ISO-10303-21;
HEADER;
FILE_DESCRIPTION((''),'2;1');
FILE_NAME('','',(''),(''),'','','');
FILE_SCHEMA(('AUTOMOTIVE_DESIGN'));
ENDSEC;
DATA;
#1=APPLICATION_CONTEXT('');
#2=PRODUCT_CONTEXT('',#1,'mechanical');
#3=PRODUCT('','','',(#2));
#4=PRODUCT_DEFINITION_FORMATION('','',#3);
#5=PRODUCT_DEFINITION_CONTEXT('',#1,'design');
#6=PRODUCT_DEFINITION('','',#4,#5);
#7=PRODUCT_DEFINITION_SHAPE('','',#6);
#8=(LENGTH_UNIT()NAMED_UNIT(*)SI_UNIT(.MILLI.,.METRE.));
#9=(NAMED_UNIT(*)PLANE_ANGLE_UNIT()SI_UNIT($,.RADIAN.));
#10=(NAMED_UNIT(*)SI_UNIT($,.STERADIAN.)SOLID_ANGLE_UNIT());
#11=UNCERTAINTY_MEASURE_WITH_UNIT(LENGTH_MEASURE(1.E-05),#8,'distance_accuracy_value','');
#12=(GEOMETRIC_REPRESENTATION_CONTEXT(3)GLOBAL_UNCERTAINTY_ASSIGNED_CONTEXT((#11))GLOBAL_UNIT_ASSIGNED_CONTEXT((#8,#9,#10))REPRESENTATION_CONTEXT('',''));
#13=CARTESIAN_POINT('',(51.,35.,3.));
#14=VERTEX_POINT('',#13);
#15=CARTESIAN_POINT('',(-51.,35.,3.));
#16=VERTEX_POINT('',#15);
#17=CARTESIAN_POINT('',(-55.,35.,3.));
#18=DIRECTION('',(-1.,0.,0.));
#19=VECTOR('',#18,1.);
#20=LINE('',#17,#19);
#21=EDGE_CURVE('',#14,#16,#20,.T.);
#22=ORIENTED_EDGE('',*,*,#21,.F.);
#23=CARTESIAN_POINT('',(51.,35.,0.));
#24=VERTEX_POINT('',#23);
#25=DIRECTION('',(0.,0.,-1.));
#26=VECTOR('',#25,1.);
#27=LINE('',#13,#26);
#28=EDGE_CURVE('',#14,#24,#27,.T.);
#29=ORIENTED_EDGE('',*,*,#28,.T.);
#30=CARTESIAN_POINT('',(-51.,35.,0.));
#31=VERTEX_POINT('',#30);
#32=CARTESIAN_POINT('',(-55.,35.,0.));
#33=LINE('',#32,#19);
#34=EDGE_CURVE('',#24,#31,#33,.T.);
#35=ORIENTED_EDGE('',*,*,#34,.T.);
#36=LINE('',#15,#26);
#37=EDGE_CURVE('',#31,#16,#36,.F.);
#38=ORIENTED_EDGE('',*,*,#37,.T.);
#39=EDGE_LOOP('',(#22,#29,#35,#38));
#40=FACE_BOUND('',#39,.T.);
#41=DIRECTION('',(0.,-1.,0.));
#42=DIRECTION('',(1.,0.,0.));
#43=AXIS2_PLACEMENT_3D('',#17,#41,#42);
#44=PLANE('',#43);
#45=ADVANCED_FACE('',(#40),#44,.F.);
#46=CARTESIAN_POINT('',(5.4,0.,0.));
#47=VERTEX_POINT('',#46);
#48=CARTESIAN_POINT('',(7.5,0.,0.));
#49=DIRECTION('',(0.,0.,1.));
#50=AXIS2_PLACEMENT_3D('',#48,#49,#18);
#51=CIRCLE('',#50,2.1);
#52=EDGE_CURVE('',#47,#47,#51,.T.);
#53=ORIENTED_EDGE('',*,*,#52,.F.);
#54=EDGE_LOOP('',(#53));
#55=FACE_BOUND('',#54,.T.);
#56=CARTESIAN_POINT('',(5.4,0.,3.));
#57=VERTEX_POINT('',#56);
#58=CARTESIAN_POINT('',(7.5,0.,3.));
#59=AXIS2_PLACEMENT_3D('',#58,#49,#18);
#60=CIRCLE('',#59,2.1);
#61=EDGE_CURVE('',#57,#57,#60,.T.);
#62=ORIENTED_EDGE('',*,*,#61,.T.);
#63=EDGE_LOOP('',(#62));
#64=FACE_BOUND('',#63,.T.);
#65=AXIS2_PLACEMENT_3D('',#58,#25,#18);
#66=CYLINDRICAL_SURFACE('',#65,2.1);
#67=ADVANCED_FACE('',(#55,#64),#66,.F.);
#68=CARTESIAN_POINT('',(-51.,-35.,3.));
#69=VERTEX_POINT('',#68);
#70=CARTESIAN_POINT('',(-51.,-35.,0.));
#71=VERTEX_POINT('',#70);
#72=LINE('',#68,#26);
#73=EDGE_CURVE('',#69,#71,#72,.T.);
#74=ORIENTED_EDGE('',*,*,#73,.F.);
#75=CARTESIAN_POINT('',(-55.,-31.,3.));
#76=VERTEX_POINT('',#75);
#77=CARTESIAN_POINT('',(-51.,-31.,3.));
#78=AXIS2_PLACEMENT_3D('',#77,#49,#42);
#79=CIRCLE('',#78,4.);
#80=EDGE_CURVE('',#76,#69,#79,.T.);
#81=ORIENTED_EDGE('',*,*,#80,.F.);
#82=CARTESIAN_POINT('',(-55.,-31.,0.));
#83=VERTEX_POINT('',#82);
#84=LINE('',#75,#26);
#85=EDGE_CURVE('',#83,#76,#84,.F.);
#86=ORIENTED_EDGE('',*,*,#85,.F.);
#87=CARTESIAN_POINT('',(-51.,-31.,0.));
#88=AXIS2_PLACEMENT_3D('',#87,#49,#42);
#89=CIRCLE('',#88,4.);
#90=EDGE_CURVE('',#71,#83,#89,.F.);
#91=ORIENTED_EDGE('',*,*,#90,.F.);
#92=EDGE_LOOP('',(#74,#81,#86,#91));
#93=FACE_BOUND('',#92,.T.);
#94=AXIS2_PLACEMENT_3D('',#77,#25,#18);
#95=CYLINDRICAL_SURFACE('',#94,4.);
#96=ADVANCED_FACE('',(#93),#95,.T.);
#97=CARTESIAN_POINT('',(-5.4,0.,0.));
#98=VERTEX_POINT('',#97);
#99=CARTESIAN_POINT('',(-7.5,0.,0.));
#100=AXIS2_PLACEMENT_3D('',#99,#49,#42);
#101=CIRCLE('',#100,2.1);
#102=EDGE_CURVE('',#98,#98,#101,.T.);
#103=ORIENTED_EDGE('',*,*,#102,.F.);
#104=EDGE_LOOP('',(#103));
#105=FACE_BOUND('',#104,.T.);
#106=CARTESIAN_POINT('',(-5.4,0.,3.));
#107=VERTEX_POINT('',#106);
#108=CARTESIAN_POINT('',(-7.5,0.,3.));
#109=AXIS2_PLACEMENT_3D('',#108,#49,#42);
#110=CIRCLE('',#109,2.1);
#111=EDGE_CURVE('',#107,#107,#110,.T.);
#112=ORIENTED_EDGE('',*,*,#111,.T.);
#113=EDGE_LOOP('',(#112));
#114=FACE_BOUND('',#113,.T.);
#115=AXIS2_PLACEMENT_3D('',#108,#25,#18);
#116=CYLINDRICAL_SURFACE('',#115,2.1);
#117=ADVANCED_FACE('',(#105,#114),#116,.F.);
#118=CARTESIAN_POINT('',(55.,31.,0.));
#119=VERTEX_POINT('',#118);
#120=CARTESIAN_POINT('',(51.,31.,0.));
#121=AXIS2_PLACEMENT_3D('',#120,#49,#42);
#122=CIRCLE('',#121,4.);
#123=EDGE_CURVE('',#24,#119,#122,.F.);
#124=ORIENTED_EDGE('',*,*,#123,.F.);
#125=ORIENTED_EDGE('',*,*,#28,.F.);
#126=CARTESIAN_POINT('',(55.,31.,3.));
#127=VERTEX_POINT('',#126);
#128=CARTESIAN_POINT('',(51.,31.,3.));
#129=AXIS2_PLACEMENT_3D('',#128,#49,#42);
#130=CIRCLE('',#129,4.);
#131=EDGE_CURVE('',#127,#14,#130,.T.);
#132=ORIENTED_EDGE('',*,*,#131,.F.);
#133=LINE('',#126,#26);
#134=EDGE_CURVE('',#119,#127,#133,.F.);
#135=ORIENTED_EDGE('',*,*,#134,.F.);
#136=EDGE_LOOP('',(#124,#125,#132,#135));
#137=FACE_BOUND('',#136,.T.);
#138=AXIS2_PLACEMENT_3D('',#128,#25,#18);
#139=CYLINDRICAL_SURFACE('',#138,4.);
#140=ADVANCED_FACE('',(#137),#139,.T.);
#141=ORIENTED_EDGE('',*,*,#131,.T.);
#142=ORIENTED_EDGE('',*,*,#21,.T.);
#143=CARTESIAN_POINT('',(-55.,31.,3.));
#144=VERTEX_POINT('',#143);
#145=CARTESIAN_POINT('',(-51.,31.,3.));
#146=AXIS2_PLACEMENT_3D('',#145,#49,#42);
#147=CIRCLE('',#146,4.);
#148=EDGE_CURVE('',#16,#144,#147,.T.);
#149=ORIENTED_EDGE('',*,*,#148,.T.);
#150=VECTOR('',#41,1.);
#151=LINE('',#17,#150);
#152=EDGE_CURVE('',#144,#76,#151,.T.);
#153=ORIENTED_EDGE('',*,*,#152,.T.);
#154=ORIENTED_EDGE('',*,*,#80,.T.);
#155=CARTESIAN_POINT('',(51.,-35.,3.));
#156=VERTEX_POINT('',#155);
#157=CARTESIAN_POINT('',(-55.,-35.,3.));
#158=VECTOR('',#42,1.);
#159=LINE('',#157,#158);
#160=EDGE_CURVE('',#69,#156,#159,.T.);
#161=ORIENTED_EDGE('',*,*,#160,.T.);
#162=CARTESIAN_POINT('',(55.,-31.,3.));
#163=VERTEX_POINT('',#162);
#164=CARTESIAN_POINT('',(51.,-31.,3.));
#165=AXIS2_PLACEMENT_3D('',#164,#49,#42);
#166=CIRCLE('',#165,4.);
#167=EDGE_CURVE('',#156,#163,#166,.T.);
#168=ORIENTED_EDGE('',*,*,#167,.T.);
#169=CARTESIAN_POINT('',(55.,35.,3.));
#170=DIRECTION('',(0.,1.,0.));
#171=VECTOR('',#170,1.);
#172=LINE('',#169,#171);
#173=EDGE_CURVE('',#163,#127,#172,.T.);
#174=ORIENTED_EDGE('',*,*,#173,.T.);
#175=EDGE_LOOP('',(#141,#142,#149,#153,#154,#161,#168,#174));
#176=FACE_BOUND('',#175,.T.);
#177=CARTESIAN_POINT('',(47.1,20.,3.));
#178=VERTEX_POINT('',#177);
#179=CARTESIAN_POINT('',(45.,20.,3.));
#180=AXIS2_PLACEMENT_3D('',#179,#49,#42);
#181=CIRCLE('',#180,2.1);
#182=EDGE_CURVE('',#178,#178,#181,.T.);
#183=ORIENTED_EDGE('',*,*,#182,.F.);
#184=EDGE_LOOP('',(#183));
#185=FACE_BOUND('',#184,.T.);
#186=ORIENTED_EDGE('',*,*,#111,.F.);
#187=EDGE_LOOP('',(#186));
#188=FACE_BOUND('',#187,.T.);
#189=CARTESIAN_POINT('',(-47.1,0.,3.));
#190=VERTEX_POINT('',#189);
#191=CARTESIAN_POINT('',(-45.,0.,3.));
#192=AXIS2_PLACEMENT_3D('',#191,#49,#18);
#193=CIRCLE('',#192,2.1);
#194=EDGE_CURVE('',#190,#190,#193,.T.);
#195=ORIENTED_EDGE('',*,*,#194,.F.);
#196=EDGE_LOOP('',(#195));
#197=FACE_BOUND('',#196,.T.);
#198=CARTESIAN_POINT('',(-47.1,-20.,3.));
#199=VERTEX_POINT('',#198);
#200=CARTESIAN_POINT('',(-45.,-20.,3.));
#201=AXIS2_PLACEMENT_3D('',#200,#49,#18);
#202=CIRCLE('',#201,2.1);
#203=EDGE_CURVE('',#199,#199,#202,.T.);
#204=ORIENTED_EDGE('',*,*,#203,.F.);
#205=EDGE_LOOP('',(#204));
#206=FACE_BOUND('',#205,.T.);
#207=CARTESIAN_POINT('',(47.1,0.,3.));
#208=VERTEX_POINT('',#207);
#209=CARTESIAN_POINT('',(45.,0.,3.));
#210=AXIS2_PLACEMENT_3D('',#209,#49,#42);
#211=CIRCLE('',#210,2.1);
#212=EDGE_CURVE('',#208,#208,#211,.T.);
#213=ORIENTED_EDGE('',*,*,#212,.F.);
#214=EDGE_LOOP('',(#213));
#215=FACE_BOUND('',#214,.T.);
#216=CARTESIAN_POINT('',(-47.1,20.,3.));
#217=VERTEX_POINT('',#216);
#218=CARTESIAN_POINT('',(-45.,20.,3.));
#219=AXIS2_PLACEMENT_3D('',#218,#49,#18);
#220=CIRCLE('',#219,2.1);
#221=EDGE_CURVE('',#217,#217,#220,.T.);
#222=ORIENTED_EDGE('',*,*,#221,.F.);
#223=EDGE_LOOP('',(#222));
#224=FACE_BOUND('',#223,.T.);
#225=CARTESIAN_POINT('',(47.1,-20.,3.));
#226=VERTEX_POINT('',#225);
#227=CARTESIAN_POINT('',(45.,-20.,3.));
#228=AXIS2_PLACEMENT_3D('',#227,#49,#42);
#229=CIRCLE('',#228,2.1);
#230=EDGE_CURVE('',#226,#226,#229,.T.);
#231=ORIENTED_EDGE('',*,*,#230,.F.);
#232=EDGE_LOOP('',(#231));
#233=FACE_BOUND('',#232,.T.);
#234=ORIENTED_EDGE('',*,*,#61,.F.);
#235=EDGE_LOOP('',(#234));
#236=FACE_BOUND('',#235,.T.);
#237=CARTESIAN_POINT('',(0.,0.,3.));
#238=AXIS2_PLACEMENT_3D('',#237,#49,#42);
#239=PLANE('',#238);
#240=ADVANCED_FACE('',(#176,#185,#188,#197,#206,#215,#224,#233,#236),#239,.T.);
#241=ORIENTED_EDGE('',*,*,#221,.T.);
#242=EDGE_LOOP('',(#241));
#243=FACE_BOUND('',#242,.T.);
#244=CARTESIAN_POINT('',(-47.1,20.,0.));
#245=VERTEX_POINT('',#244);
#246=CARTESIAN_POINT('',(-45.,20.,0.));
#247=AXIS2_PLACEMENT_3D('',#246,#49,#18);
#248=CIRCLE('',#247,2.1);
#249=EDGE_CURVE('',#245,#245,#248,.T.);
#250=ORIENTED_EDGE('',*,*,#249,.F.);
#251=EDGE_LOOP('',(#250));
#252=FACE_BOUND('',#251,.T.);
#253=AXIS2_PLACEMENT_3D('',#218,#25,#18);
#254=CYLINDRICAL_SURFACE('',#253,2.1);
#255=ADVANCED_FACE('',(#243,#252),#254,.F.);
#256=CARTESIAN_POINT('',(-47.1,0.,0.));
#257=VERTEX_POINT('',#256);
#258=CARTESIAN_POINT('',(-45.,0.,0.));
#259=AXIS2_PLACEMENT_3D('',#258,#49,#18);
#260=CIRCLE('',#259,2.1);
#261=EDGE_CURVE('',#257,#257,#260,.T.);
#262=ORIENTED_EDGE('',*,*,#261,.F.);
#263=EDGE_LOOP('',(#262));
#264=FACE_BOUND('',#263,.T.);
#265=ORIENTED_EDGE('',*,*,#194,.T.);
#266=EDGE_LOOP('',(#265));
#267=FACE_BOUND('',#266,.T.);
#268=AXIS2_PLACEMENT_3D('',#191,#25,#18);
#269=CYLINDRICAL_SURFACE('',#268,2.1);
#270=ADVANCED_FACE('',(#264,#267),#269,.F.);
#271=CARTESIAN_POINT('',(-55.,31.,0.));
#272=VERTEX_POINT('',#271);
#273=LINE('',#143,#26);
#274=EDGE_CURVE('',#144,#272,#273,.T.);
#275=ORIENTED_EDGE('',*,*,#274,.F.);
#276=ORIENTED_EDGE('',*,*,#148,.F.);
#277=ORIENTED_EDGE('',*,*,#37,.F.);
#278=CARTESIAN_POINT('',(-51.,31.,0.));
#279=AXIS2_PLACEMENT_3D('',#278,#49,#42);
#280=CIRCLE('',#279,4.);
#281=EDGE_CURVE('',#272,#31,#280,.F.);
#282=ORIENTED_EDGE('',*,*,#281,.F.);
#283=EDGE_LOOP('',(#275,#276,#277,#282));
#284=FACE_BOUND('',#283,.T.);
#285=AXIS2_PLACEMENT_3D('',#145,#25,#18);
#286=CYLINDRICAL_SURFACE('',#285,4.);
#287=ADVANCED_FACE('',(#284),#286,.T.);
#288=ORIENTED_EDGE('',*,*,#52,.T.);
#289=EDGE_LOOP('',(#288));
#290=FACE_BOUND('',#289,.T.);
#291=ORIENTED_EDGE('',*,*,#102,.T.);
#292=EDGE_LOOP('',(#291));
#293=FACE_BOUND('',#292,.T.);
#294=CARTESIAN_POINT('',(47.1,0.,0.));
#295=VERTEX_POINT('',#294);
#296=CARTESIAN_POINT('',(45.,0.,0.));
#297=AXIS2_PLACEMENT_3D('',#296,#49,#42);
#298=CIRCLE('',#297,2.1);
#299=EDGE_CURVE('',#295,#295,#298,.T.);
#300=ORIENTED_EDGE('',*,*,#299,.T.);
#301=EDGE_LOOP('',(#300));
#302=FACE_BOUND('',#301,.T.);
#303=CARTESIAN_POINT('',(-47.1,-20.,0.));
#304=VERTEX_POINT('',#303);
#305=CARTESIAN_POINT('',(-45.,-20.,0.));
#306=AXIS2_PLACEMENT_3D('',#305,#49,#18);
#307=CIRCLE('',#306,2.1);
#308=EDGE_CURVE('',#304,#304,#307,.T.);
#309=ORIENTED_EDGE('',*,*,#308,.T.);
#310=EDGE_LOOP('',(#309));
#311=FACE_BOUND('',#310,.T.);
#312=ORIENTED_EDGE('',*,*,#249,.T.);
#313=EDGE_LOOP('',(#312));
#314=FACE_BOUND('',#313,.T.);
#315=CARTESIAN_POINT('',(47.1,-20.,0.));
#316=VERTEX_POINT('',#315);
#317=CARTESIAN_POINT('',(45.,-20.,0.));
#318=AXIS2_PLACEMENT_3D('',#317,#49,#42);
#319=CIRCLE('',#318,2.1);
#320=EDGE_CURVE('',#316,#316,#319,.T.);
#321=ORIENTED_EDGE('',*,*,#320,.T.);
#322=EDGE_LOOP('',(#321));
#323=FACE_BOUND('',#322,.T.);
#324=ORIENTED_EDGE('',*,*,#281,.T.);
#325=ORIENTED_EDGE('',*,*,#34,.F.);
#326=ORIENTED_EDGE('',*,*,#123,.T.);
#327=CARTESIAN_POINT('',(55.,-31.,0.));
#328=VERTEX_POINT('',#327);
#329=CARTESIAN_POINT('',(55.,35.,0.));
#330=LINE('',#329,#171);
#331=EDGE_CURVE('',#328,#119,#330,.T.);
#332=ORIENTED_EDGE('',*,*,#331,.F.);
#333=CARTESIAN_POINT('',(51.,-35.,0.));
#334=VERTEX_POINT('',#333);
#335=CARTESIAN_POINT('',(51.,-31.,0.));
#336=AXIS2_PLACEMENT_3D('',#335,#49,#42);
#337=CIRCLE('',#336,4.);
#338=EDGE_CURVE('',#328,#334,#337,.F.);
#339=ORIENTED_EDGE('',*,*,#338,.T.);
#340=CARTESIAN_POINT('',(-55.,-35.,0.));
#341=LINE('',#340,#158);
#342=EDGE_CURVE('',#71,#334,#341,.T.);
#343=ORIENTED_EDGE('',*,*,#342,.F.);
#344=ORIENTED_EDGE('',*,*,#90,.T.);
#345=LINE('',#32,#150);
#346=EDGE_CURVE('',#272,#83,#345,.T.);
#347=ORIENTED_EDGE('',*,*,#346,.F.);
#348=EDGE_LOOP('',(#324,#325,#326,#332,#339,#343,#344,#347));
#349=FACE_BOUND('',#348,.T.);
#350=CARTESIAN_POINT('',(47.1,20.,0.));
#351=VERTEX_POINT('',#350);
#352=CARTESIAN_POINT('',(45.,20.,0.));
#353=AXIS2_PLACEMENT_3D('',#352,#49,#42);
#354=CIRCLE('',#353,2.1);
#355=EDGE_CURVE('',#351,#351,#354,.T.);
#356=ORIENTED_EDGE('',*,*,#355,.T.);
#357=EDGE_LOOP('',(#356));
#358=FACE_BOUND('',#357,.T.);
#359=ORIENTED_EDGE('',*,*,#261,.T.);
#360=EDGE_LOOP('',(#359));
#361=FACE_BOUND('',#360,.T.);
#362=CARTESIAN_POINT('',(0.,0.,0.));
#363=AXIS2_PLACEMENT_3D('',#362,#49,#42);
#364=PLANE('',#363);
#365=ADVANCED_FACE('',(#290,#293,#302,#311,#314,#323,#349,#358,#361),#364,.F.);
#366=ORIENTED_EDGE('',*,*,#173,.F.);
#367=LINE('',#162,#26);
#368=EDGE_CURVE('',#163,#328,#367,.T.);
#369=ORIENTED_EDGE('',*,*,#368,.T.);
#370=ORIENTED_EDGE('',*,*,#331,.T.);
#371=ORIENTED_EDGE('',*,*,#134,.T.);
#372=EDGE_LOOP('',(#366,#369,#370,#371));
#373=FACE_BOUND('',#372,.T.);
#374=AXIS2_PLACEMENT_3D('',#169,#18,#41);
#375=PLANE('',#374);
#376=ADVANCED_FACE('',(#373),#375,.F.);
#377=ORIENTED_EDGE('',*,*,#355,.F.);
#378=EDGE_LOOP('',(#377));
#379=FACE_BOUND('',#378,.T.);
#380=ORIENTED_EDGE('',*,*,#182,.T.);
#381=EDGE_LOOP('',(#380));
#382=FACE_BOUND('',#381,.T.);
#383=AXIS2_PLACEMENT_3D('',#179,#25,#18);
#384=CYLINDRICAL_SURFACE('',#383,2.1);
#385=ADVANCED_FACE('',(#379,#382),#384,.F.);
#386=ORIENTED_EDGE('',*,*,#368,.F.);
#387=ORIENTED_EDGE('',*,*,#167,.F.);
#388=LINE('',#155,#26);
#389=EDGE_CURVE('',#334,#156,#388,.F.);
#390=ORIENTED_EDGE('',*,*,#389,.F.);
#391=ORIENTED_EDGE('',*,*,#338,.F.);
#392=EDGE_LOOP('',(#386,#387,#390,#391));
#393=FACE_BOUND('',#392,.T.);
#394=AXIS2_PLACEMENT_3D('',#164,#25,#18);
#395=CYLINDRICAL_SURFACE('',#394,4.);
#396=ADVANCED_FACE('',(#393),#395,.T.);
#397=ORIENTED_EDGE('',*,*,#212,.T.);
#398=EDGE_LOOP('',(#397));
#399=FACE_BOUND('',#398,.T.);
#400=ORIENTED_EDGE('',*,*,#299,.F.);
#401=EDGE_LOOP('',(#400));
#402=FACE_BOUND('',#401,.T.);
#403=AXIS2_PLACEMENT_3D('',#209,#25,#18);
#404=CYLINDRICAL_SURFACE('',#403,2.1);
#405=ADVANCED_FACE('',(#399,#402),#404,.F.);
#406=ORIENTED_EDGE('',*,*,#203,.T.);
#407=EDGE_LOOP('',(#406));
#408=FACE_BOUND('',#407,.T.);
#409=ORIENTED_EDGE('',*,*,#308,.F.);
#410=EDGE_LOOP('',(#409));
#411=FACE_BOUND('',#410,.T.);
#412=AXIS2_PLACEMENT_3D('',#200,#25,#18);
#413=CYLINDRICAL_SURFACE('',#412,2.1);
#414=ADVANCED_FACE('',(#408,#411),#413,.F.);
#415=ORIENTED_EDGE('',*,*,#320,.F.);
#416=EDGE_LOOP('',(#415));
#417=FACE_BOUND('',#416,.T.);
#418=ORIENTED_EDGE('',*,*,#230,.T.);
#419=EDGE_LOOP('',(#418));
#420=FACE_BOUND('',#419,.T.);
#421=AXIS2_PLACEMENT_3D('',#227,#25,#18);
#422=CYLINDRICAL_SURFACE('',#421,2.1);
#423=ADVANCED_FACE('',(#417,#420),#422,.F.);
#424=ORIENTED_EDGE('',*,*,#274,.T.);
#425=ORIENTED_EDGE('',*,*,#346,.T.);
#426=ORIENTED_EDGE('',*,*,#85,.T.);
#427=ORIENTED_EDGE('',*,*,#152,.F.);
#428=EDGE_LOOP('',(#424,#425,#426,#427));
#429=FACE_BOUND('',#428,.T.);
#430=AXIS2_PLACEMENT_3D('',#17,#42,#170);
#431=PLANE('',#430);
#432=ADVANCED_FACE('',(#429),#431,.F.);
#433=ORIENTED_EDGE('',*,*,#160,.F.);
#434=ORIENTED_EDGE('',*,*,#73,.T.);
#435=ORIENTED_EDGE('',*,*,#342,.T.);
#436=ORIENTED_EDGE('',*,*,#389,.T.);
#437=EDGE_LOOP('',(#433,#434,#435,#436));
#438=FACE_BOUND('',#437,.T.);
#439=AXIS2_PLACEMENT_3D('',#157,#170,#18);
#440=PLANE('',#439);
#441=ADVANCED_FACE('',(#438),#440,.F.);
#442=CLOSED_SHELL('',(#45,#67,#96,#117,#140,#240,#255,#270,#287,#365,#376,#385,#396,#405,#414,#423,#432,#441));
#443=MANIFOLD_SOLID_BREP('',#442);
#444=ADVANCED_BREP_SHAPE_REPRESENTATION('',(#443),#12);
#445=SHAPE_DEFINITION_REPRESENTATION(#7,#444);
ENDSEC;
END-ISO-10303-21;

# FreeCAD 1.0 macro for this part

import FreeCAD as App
import Part
import Sketcher


def edges_at(feature, points):
    """Names of the edges that pass closest to the given points."""
    edges = feature.Shape.Edges
    near = lambda p: min(range(len(edges)), key=lambda i: edges[i].distToShape(Part.Vertex(*p))[0])
    return sorted({f"Edge{near(p) + 1}" for p in points})


def add_polygon(sketch, points):
    """Adds a closed chain of lines whose ends are joined by coincident constraints."""
    first, n = sketch.GeometryCount, len(points)
    for a, b in zip(points, points[1:] + points[:1]):
        sketch.addGeometry(Part.LineSegment(App.Vector(*a, 0), App.Vector(*b, 0)), False)
    for i in range(n):
        sketch.addConstraint(Sketcher.Constraint("Coincident", first + i, 2, first + (i + 1) % n, 1))

doc = App.newDocument("Part")
params = doc.addObject("Spreadsheet::Sheet", "Params")
for row, (alias, value) in enumerate([
    ("sketch1_diameter", "4.2 mm"),
    ("sketch1_width", "110 mm"),
    ("sketch1_height", "70 mm"),
    ("pad1_length", "3 mm"),
    ("fillet_radius", "4 mm"),
], start=1):
    params.set(f"A{row}", alias)
    params.set(f"B{row}", "=" + value)
    params.setAlias(f"B{row}", alias)

body = doc.addObject("PartDesign::Body", "Body")

sketch1 = body.newObject("Sketcher::SketchObject", "Sketch")
sketch1.AttachmentSupport = (doc.getObject("XY_Plane"), [""])
sketch1.MapMode = "FlatFace"
add_polygon(sketch1, [(-55, 35), (-55, -35), (55, -35), (55, 35)])
sketch1.addGeometry(Part.Circle(App.Vector(-45, -20, 0), App.Vector(0, 0, 1), 2.1), False)
sketch1.addGeometry(Part.Circle(App.Vector(45, -20, 0), App.Vector(0, 0, 1), 2.1), False)
sketch1.addGeometry(Part.Circle(App.Vector(-45, 0, 0), App.Vector(0, 0, 1), 2.1), False)
sketch1.addGeometry(Part.Circle(App.Vector(-7.5, 0, 0), App.Vector(0, 0, 1), 2.1), False)
sketch1.addGeometry(Part.Circle(App.Vector(-45, 20, 0), App.Vector(0, 0, 1), 2.1), False)
sketch1.addGeometry(Part.Circle(App.Vector(7.5, 0, 0), App.Vector(0, 0, 1), 2.1), False)
sketch1.addGeometry(Part.Circle(App.Vector(45, 0, 0), App.Vector(0, 0, 1), 2.1), False)
sketch1.addGeometry(Part.Circle(App.Vector(45, 20, 0), App.Vector(0, 0, 1), 2.1), False)
sketch1.addConstraint(Sketcher.Constraint("Vertical", 0))
sketch1.addConstraint(Sketcher.Constraint("Horizontal", 1))
sketch1.addConstraint(Sketcher.Constraint("Vertical", 2))
sketch1.addConstraint(Sketcher.Constraint("Horizontal", 3))
sketch1.addConstraint(Sketcher.Constraint("Equal", 4, 5))
sketch1.addConstraint(Sketcher.Constraint("Equal", 5, 6))
sketch1.addConstraint(Sketcher.Constraint("Equal", 6, 7))
sketch1.addConstraint(Sketcher.Constraint("Equal", 7, 8))
sketch1.addConstraint(Sketcher.Constraint("Equal", 8, 9))
sketch1.addConstraint(Sketcher.Constraint("Equal", 9, 10))
sketch1.addConstraint(Sketcher.Constraint("Equal", 10, 11))
sketch1.addConstraint(Sketcher.Constraint("Symmetric", 5, 3, 8, 3, -1, 1))
sketch1.addConstraint(Sketcher.Constraint("Symmetric", 7, 3, 9, 3, -1, 1))
sketch1.addConstraint(Sketcher.Constraint("Symmetric", 6, 3, 10, 3, -1, 1))
sketch1.addConstraint(Sketcher.Constraint("Symmetric", 4, 3, 11, 3, -1, 1))
sketch1.addConstraint(Sketcher.Constraint("Symmetric", 0, 2, 2, 2, -1, 1))
sketch1.addConstraint(Sketcher.Constraint("Symmetric", 4, 3, 5, 3, -2))
sketch1.addConstraint(Sketcher.Constraint("PointOnObject", 6, 3, -1))
sketch1.addConstraint(Sketcher.Constraint("PointOnObject", 7, 3, -1))
sketch1.addConstraint(Sketcher.Constraint("Vertical", 4, 3, 6, 3))
sketch1.addConstraint(Sketcher.Constraint("Diameter", 4, 4.2))
sketch1.addConstraint(Sketcher.Constraint("DistanceX", 1, 1, 1, 2, 110.0))
sketch1.addConstraint(Sketcher.Constraint("DistanceY", 0, 2, 0, 1, 70.0))
sketch1.addConstraint(Sketcher.Constraint("DistanceX", 4, 3, -1, 1, 45.0))
sketch1.addConstraint(Sketcher.Constraint("DistanceY", 4, 3, -1, 1, 20.0))
sketch1.addConstraint(Sketcher.Constraint("DistanceX", 7, 3, 9, 3, 15.0))
sketch1.setExpression("Constraints[24]", "Params.sketch1_diameter")
sketch1.setExpression("Constraints[25]", "Params.sketch1_width")
sketch1.setExpression("Constraints[26]", "Params.sketch1_height")
pad1 = body.newObject("PartDesign::Pad", "Pad")
pad1.Profile = sketch1
pad1.setExpression("Length", "Params.pad1_length")
doc.recompute()

fillet = body.newObject("PartDesign::Fillet", "Fillet")
fillet.Base = (pad1, edges_at(pad1, [
    (55, -35, 1.5),
    (-55, -35, 1.5),
    (-55, 35, 1.5),
    (55, 35, 1.5),
]))
fillet.setExpression("Radius", "Params.fillet_radius")

doc.recompute()
